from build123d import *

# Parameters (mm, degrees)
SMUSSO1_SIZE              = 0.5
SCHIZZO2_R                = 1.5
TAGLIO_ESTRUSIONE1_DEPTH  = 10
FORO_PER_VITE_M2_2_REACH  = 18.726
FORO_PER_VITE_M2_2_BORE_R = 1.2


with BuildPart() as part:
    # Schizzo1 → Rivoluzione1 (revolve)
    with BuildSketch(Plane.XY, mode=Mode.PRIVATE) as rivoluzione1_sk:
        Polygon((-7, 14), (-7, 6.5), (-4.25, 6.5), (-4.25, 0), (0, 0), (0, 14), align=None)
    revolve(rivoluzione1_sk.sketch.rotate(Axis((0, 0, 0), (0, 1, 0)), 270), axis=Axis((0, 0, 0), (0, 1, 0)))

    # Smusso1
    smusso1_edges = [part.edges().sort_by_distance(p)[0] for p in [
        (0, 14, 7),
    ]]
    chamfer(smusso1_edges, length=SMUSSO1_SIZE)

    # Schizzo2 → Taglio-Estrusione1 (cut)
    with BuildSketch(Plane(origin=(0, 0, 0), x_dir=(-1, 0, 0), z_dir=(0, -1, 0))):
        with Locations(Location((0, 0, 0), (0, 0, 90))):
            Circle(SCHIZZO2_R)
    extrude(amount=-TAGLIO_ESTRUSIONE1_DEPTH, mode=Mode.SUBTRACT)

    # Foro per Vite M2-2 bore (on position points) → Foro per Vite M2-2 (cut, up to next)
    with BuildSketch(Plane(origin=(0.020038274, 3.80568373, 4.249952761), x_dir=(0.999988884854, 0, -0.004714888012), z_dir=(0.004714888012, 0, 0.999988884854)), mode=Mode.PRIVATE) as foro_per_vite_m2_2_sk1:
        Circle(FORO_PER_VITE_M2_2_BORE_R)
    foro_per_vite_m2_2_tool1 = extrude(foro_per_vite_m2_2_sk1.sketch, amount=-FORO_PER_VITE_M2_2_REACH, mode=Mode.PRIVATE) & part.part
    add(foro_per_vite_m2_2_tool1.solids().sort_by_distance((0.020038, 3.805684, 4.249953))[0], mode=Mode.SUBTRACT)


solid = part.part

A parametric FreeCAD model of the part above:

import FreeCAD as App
import Part
import Sketcher

V = App.Vector
Q = App.Units.Quantity


def edges_at(feature, points):
    """Names of the edges that pass closest to the given points."""
    edges = feature.Shape.Edges
    near = lambda p: min(range(len(edges)), key=lambda i: edges[i].distToShape(Part.Vertex(*p))[0])
    return sorted({f"Edge{near(p) + 1}" for p in points})


def add_polygon(sketch, points):
    """Adds a closed chain of lines whose ends are joined by coincident constraints."""
    first, n = sketch.GeometryCount, len(points)
    for a, b in zip(points, points[1:] + points[:1]):
        sketch.addGeometry(Part.LineSegment(App.Vector(*a, 0), App.Vector(*b, 0)), False)
    for i in range(n):
        sketch.addConstraint(Sketcher.Constraint("Coincident", first + i, 2, first + (i + 1) % n, 1))

doc = App.newDocument("Part")
body = doc.addObject("PartDesign::Body", "Body")

# Sketch on XY plane
sketch1 = doc.addObject("Sketcher::SketchObject", "Sketch")
body.addObject(sketch1)
sketch1.AttachmentSupport = (doc.XY_Plane, [""])
sketch1.MapMode = "FlatFace"
add_polygon(sketch1, [(-7, 14), (-7, 6.5), (-4.2, 6.5), (-4.2, 0), (0, 0), (0, 14)])  # lines 0-5
sketch1.addConstraint([
    Sketcher.Constraint("Vertical", 0),
    Sketcher.Constraint("Horizontal", 1),
    Sketcher.Constraint("Vertical", 2),
    Sketcher.Constraint("Horizontal", 3),
    Sketcher.Constraint("Vertical", 4),
    Sketcher.Constraint("Horizontal", 5),
    Sketcher.Constraint("Coincident", 3, 2, -1, 1),
    Sketcher.Constraint("DistanceX", 5, 2, 5, 1, Q("7 mm")),
    Sketcher.Constraint("DistanceY", 4, 1, 4, 2, Q("14 mm")),
    Sketcher.Constraint("DistanceY", 0, 2, 0, 1, Q("7.5 mm")),
    Sketcher.Constraint("DistanceX", 1, 1, 1, 2, Q("2.75 mm")),
])
revolution = doc.addObject("PartDesign::Revolution", "Revolution")
body.addObject(revolution)
revolution.Profile = sketch1
revolution.ReferenceAxis = (sketch1, ["V_Axis"])
revolution.Angle = 360
doc.recompute()

chamfer = doc.addObject("PartDesign::Chamfer", "Chamfer")
body.addObject(chamfer)
chamfer.Base = (revolution, edges_at(revolution, [(0, 14, 7)]))
chamfer.Size = 0.5

# Sketch on XZ plane
sketch2 = doc.addObject("Sketcher::SketchObject", "Sketch001")
body.addObject(sketch2)
sketch2.AttachmentSupport = (doc.XZ_Plane, [""])
sketch2.MapMode = "FlatFace"
sketch2.addGeometry(Part.Circle(V(0, 0, 0), V(0, 0, 1), 1.5), False)
sketch2.addConstraint([
    Sketcher.Constraint("Coincident", 0, 3, -1, 1),
    Sketcher.Constraint("Diameter", 0, Q("3 mm")),
])
pocket1 = doc.addObject("PartDesign::Pocket", "Pocket")
body.addObject(pocket1)
pocket1.Profile = sketch2
pocket1.Length = 10

# Sketch on an angled plane
sketch3 = doc.addObject("Sketcher::SketchObject", "Sketch002")
body.addObject(sketch3)
sketch3.Placement = App.Placement(V(0.020038, 3.805684, 4.249953), App.Rotation(V(0.999988885, 0, -0.004714888), V(0, 1, 0), V(0.004714888, 0, 0.999988885), "ZXY"))
sketch3.addGeometry(Part.Circle(V(0, 0, 0), V(0, 0, 1), 1.2), False)
sketch3.addConstraint([
    Sketcher.Constraint("Coincident", 0, 3, -1, 1),
    Sketcher.Constraint("Diameter", 0, Q("2.4 mm")),
])
pocket2 = doc.addObject("PartDesign::Pocket", "Pocket001")
body.addObject(pocket2)
pocket2.Profile = sketch3
pocket2.Type = "UpToFirst"

doc.recompute()
